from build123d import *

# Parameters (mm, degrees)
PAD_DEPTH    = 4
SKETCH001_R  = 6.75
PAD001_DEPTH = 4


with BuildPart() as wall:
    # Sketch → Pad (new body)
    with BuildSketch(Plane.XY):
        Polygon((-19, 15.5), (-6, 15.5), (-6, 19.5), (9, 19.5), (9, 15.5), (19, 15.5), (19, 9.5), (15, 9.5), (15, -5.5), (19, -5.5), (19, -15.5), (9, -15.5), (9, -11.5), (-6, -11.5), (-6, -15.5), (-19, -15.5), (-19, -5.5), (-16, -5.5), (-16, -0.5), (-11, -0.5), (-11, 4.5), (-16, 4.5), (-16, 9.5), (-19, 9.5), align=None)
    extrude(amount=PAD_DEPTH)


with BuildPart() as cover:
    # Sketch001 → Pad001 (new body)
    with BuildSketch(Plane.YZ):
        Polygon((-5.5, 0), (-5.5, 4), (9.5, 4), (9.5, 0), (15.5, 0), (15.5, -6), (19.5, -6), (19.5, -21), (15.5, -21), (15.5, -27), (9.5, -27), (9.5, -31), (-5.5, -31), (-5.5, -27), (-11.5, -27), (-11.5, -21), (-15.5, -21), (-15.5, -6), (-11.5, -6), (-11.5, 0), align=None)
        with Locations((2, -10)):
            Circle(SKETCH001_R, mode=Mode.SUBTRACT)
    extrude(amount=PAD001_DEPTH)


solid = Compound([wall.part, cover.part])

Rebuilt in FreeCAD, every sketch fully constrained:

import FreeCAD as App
import Part
import Sketcher
from FreeCAD import Vector
Q = App.Units.Quantity


def add_polygon(sketch, points):
    """Adds a closed chain of lines whose ends are joined by coincident constraints."""
    first, n = sketch.GeometryCount, len(points)
    for a, b in zip(points, points[1:] + points[:1]):
        sketch.addGeometry(Part.LineSegment(App.Vector(*a, 0), App.Vector(*b, 0)), False)
    for i in range(n):
        sketch.addConstraint(Sketcher.Constraint("Coincident", first + i, 2, first + (i + 1) % n, 1))

doc = App.newDocument("Part")
params = doc.addObject("Spreadsheet::Sheet", "Params")
for row, (alias, value) in enumerate([
    ("sketch1_width", "13 mm"),
    ("sketch1_width2", "3 mm"),
    ("sketch1_width3", "5 mm"),
    ("sketch1_width4", "10 mm"),
    ("sketch1_width5", "4 mm"),
    ("pad1_length", "4 mm"),
    ("sketch2_diameter", "13.5 mm"),
    ("sketch2_width", "6 mm"),
    ("sketch2_width2", "4 mm"),
    ("sketch2_width3", "15 mm"),
    ("pad2_length", "4 mm"),
], start=1):
    params.set(f"A{row}", alias)
    params.set(f"B{row}", "=" + value)
    params.setAlias(f"B{row}", alias)

body = doc.addObject("PartDesign::Body", "Body")

# Sketch on XY plane
sketch1 = body.newObject("Sketcher::SketchObject", "Sketch")
sketch1.AttachmentSupport = (doc.getObject("XY_Plane"), [""])
sketch1.MapMode = "FlatFace"
add_polygon(sketch1, [(-6, 15.5), (-19, 15.5), (-19, 9.5), (-16, 9.5), (-16, 4.5), (-11, 4.5), (-11, -0.5), (-16, -0.5), (-16, -5.5), (-19, -5.5), (-19, -15.5), (-6, -15.5), (-6, -11.5), (9, -11.5), (9, -15.5), (19, -15.5), (19, -5.5), (15, -5.5), (15, 9.5), (19, 9.5), (19, 15.5), (9, 15.5), (9, 19.5), (-6, 19.5)])  # lines 0-23
sketch1.addConstraint([
    Sketcher.Constraint("Horizontal", 0),
    Sketcher.Constraint("Vertical", 1),
    Sketcher.Constraint("Horizontal", 2),
    Sketcher.Constraint("Vertical", 3),
    Sketcher.Constraint("Horizontal", 4),
    Sketcher.Constraint("Vertical", 5),
    Sketcher.Constraint("Horizontal", 6),
    Sketcher.Constraint("Vertical", 7),
    Sketcher.Constraint("Horizontal", 8),
    Sketcher.Constraint("Vertical", 9),
    Sketcher.Constraint("Horizontal", 10),
    Sketcher.Constraint("Vertical", 11),
    Sketcher.Constraint("Horizontal", 12),
    Sketcher.Constraint("Vertical", 13),
    Sketcher.Constraint("Horizontal", 14),
    Sketcher.Constraint("Vertical", 15),
    Sketcher.Constraint("Horizontal", 16),
    Sketcher.Constraint("Vertical", 17),
    Sketcher.Constraint("Horizontal", 18),
    Sketcher.Constraint("Vertical", 19),
    Sketcher.Constraint("Horizontal", 20),
    Sketcher.Constraint("Vertical", 21),
    Sketcher.Constraint("Horizontal", 22),
    Sketcher.Constraint("Vertical", 23),
    Sketcher.Constraint("Symmetric", 0, 2, 14, 2, -1, 1),
    Sketcher.Constraint("Symmetric", 9, 2, 19, 2, -1, 1),
    Sketcher.Constraint("Symmetric", 9, 2, 14, 2, -2),
    Sketcher.Constraint("Horizontal", 8, 2, 15, 2),
    Sketcher.Constraint("Horizontal", 2, 2, 17, 2),
    Sketcher.Constraint("Vertical", 3, 2, 6, 2),
    Sketcher.Constraint("Vertical", 13, 2, 20, 2),
    Sketcher.Constraint("Vertical", 11, 2, 22, 2),
    Sketcher.Constraint("Equal", 6, 3),
    Sketcher.Constraint("Equal", 3, 5),
    Sketcher.Constraint("Equal", 5, 7),
    Sketcher.Constraint("Equal", 20, 9),
    Sketcher.Constraint("Equal", 18, 11),
    Sketcher.Constraint("Equal", 22, 17),
    Sketcher.Constraint("Equal", 13, 21),
    Sketcher.Constraint("DistanceX", 0, 2, 0, 1, Q("13 mm")),
    Sketcher.Constraint("DistanceX", 2, 1, 2, 2, Q("3 mm")),
    Sketcher.Constraint("DistanceX", 4, 1, 4, 2, Q("5 mm")),
    Sketcher.Constraint("DistanceX", 14, 1, 14, 2, Q("10 mm")),
    Sketcher.Constraint("DistanceX", 16, 2, 16, 1, Q("4 mm")),
    Sketcher.Constraint("DistanceY", 1, 2, 1, 1, Q("6 mm")),
])
sketch1.setExpression("Constraints[63]", "Params.sketch1_width")
sketch1.setExpression("Constraints[64]", "Params.sketch1_width2")
sketch1.setExpression("Constraints[65]", "Params.sketch1_width3")
sketch1.setExpression("Constraints[66]", "Params.sketch1_width4")
sketch1.setExpression("Constraints[67]", "Params.sketch1_width5")
pad1 = body.newObject("PartDesign::Pad", "Pad")
pad1.Profile = sketch1
pad1.setExpression("Length", "Params.pad1_length")
body2 = doc.addObject("PartDesign::Body", "Body001")

# Sketch on YZ plane
sketch2 = body2.newObject("Sketcher::SketchObject", "Sketch001")
sketch2.AttachmentSupport = (doc.getObject("YZ_Plane001"), [""])
sketch2.MapMode = "FlatFace"
add_polygon(sketch2, [(-5.5, 4), (-5.5, 0), (-11.5, 0), (-11.5, -6), (-15.5, -6), (-15.5, -21), (-11.5, -21), (-11.5, -27), (-5.5, -27), (-5.5, -31), (9.5, -31), (9.5, -27), (15.5, -27), (15.5, -21), (19.5, -21), (19.5, -6), (15.5, -6), (15.5, 0), (9.5, 0), (9.5, 4)])  # lines 0-19
sketch2.addGeometry(Part.Circle(Vector(2, -10, 0), Vector(0, 0, 1), 6.8), False)  # 20
sketch2.addConstraint([
    Sketcher.Constraint("Vertical", 0),
    Sketcher.Constraint("Horizontal", 1),
    Sketcher.Constraint("Vertical", 2),
    Sketcher.Constraint("Horizontal", 3),
    Sketcher.Constraint("Vertical", 4),
    Sketcher.Constraint("Horizontal", 5),
    Sketcher.Constraint("Vertical", 6),
    Sketcher.Constraint("Horizontal", 7),
    Sketcher.Constraint("Vertical", 8),
    Sketcher.Constraint("Horizontal", 9),
    Sketcher.Constraint("Vertical", 10),
    Sketcher.Constraint("Horizontal", 11),
    Sketcher.Constraint("Vertical", 12),
    Sketcher.Constraint("Horizontal", 13),
    Sketcher.Constraint("Vertical", 14),
    Sketcher.Constraint("Horizontal", 15),
    Sketcher.Constraint("Vertical", 16),
    Sketcher.Constraint("Horizontal", 17),
    Sketcher.Constraint("Vertical", 18),
    Sketcher.Constraint("Horizontal", 19),
    Sketcher.Constraint("Symmetric", 4, 2, 12, 2, -2),
    Sketcher.Constraint("Symmetric", 3, 2, 15, 2, -2),
    Sketcher.Constraint("PointOnObject", 0, 2, -1),
    Sketcher.Constraint("PointOnObject", 16, 2, -1),
    Sketcher.Constraint("Horizontal", 7, 2, 10, 2),
    Sketcher.Constraint("Vertical", 2, 2, 5, 2),
    Sketcher.Constraint("Vertical", 0, 2, 7, 2),
    Sketcher.Constraint("Vertical", 10, 2, 17, 2),
    Sketcher.Constraint("Equal", 7, 11),
    Sketcher.Constraint("Equal", 5, 13),
    Sketcher.Constraint("Equal", 15, 0),
    Sketcher.Constraint("Equal", 17, 2),
    Sketcher.Constraint("Equal", 19, 4),
    Sketcher.Constraint("Equal", 2, 6),
    Sketcher.Constraint("Equal", 0, 8),
    Sketcher.Constraint("Diameter", 20, Q("13.5 mm")),
    Sketcher.Constraint("DistanceX", 1, 2, 1, 1, Q("6 mm")),
    Sketcher.Constraint("DistanceX", 3, 2, 3, 1, Q("4 mm")),
    Sketcher.Constraint("DistanceX", 9, 1, 9, 2, Q("15 mm")),
    Sketcher.Constraint("DistanceX", -1, 1, 20, 3, Q("2 mm")),
    Sketcher.Constraint("DistanceY", 20, 3, -1, 1, Q("10 mm")),
])
sketch2.setExpression("Constraints[55]", "Params.sketch2_diameter")
sketch2.setExpression("Constraints[56]", "Params.sketch2_width")
sketch2.setExpression("Constraints[57]", "Params.sketch2_width2")
sketch2.setExpression("Constraints[58]", "Params.sketch2_width3")
pad2 = body2.newObject("PartDesign::Pad", "Pad001")
pad2.Profile = sketch2
pad2.setExpression("Length", "Params.pad2_length")

doc.recompute()
